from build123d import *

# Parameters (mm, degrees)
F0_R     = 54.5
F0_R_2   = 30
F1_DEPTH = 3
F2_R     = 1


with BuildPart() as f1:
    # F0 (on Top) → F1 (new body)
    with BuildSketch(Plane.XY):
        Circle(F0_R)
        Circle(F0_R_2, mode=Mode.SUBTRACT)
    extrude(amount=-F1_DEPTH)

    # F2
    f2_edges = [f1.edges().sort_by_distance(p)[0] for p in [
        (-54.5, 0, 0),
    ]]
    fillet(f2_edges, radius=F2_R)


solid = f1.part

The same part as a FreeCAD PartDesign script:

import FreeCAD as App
import Part
import Sketcher

V = App.Vector
Q = App.Units.Quantity


def edges_at(feature, points):
    """Names of the edges that pass closest to the given points."""
    edges = feature.Shape.Edges
    near = lambda p: min(range(len(edges)), key=lambda i: edges[i].distToShape(Part.Vertex(*p))[0])
    return sorted({f"Edge{near(p) + 1}" for p in points})

doc = App.newDocument("Part")
params = doc.addObject("Spreadsheet::Sheet", "Params")
for row, (alias, value) in enumerate([
    ("sketch1_diameter", "109 mm"),
    ("sketch1_diameter2", "60 mm"),
    ("pad1_length", "3 mm"),
    ("fillet_radius", "1 mm"),
], start=1):
    params.set(f"A{row}", alias)
    params.set(f"B{row}", "=" + value)
    params.setAlias(f"B{row}", alias)

body = doc.addObject("PartDesign::Body", "Body")

sketch1 = doc.addObject("Sketcher::SketchObject", "Sketch")
body.addObject(sketch1)
sketch1.AttachmentSupport = (doc.XY_Plane, [""])
sketch1.MapMode = "FlatFace"
sketch1.addGeometry(Part.Circle(V(0, 0, 0), V(0, 0, 1), 54), False)
sketch1.addGeometry(Part.Circle(V(0, 0, 0), V(0, 0, 1), 30), False)
sketch1.addConstraint(Sketcher.Constraint("Coincident", 0, 3, -1, 1))
sketch1.addConstraint(Sketcher.Constraint("Coincident", 1, 3, -1, 1))
sketch1.addConstraint(Sketcher.Constraint("Diameter", 0, Q("109 mm")))
sketch1.addConstraint(Sketcher.Constraint("Diameter", 1, Q("60 mm")))
sketch1.setExpression("Constraints[2]", "Params.sketch1_diameter")
sketch1.setExpression("Constraints[3]", "Params.sketch1_diameter2")
pad1 = doc.addObject("PartDesign::Pad", "Pad")
body.addObject(pad1)
pad1.Profile = sketch1
pad1.setExpression("Length", "Params.pad1_length")
pad1.Reversed = True
doc.recompute()

fillet = doc.addObject("PartDesign::Fillet", "Fillet")
body.addObject(fillet)
fillet.Base = (pad1, edges_at(pad1, [(-54.5, 0, 0)]))
fillet.setExpression("Radius", "Params.fillet_radius")

doc.recompute()
